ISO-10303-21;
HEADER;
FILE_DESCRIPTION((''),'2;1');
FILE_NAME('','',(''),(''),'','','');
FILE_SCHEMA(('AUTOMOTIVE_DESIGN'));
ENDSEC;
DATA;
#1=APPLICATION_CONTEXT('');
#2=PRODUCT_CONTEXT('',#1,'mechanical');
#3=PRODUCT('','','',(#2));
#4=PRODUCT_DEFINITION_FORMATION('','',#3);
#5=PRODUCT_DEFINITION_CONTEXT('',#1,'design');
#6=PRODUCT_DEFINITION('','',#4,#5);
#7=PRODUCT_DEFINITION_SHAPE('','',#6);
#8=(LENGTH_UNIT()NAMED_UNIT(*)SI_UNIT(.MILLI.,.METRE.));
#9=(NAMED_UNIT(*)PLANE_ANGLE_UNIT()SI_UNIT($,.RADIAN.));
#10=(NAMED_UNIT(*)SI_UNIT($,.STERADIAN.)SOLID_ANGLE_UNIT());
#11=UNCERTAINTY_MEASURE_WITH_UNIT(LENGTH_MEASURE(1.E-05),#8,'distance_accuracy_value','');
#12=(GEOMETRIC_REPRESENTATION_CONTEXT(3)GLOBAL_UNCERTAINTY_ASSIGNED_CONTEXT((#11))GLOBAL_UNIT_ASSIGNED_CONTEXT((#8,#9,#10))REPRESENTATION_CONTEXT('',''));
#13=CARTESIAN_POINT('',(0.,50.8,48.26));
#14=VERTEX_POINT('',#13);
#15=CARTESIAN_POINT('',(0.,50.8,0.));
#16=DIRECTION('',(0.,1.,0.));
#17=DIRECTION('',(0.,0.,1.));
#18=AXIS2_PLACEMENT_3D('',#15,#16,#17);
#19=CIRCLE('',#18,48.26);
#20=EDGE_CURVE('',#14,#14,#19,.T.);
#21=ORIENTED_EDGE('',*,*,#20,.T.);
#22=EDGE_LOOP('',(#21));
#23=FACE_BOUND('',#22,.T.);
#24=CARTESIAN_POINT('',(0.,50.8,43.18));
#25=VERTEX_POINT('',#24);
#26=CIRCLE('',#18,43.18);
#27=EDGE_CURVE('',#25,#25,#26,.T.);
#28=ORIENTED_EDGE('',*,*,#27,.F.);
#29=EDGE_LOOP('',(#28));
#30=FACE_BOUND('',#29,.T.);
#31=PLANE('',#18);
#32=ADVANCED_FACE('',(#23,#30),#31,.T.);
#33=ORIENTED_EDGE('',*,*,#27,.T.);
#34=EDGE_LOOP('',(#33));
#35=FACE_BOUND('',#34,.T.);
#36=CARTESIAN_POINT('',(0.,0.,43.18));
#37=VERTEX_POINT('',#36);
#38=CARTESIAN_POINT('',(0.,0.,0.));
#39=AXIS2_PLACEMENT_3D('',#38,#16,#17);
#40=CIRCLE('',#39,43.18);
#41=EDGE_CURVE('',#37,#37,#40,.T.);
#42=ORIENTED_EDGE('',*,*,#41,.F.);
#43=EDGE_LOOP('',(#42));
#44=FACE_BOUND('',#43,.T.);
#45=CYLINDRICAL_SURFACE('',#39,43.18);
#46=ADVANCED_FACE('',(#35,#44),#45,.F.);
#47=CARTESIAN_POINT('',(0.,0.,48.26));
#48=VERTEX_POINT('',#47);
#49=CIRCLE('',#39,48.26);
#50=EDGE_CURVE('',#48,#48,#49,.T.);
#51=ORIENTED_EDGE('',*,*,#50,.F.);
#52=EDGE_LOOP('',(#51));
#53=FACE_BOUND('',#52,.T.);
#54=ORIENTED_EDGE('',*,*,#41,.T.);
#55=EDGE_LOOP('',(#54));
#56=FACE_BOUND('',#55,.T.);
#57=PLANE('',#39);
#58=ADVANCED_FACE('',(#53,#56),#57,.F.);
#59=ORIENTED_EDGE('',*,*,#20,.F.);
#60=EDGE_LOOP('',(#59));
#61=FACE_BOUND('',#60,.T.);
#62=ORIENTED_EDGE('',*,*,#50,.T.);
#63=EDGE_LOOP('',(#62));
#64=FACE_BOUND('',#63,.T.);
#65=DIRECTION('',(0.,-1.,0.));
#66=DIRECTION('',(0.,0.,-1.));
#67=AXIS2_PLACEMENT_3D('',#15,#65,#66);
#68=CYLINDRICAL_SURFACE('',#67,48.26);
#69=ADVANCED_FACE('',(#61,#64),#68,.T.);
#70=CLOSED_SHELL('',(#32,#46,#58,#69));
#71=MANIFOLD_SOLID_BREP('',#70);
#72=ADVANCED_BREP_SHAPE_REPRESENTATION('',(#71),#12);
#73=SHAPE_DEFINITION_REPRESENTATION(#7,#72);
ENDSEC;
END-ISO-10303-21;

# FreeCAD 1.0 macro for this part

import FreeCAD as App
import Part
import Sketcher

V = App.Vector
Q = App.Units.Quantity

doc = App.newDocument("Part")
params = doc.addObject("Spreadsheet::Sheet", "Params")
for row, (alias, value) in enumerate([
    ("sketch1_diameter", "3.8 in"),
    ("pad1_length", "2 in"),
    ("sketch2_diameter", "3.4 in"),
    ("pocket1_length", "2 in"),
], start=1):
    params.set(f"A{row}", alias)
    params.set(f"B{row}", "=" + value)
    params.setAlias(f"B{row}", alias)

body = doc.addObject("PartDesign::Body", "Body")

# Sketch on XZ plane
sketch1 = doc.addObject("Sketcher::SketchObject", "Sketch")
body.addObject(sketch1)
sketch1.AttachmentSupport = (doc.XZ_Plane, [""])
sketch1.MapMode = "FlatFace"
sketch1.addGeometry(Part.Circle(V(0, 0, 0), V(0, 0, 1), 48), False)
sketch1.addConstraint(Sketcher.Constraint("Coincident", 0, 3, -1, 1))
sketch1.addConstraint(Sketcher.Constraint("Diameter", 0, Q("3.8 in")))
sketch1.setExpression("Constraints[1]", "Params.sketch1_diameter")
pad1 = doc.addObject("PartDesign::Pad", "Pad")
body.addObject(pad1)
pad1.Profile = sketch1
pad1.setExpression("Length", "Params.pad1_length")
pad1.Reversed = True

# Sketch on XZ plane
sketch2 = doc.addObject("Sketcher::SketchObject", "Sketch001")
body.addObject(sketch2)
sketch2.AttachmentSupport = (doc.XZ_Plane, [""])
sketch2.MapMode = "FlatFace"
sketch2.AttachmentOffset = App.Placement(V(0, 0, -2 * 25.4), App.Rotation())
sketch2.addGeometry(Part.Circle(V(0, 0, 0), V(0, 0, 1), 43), False)
sketch2.addConstraint(Sketcher.Constraint("Coincident", 0, 3, -1, 1))
sketch2.addConstraint(Sketcher.Constraint("Diameter", 0, Q("3.4 in")))
sketch2.setExpression("Constraints[1]", "Params.sketch2_diameter")
pocket1 = doc.addObject("PartDesign::Pocket", "Pocket")
body.addObject(pocket1)
pocket1.Profile = sketch2
pocket1.setExpression("Length", "Params.pocket1_length")
pocket1.Reversed = True

doc.recompute()
